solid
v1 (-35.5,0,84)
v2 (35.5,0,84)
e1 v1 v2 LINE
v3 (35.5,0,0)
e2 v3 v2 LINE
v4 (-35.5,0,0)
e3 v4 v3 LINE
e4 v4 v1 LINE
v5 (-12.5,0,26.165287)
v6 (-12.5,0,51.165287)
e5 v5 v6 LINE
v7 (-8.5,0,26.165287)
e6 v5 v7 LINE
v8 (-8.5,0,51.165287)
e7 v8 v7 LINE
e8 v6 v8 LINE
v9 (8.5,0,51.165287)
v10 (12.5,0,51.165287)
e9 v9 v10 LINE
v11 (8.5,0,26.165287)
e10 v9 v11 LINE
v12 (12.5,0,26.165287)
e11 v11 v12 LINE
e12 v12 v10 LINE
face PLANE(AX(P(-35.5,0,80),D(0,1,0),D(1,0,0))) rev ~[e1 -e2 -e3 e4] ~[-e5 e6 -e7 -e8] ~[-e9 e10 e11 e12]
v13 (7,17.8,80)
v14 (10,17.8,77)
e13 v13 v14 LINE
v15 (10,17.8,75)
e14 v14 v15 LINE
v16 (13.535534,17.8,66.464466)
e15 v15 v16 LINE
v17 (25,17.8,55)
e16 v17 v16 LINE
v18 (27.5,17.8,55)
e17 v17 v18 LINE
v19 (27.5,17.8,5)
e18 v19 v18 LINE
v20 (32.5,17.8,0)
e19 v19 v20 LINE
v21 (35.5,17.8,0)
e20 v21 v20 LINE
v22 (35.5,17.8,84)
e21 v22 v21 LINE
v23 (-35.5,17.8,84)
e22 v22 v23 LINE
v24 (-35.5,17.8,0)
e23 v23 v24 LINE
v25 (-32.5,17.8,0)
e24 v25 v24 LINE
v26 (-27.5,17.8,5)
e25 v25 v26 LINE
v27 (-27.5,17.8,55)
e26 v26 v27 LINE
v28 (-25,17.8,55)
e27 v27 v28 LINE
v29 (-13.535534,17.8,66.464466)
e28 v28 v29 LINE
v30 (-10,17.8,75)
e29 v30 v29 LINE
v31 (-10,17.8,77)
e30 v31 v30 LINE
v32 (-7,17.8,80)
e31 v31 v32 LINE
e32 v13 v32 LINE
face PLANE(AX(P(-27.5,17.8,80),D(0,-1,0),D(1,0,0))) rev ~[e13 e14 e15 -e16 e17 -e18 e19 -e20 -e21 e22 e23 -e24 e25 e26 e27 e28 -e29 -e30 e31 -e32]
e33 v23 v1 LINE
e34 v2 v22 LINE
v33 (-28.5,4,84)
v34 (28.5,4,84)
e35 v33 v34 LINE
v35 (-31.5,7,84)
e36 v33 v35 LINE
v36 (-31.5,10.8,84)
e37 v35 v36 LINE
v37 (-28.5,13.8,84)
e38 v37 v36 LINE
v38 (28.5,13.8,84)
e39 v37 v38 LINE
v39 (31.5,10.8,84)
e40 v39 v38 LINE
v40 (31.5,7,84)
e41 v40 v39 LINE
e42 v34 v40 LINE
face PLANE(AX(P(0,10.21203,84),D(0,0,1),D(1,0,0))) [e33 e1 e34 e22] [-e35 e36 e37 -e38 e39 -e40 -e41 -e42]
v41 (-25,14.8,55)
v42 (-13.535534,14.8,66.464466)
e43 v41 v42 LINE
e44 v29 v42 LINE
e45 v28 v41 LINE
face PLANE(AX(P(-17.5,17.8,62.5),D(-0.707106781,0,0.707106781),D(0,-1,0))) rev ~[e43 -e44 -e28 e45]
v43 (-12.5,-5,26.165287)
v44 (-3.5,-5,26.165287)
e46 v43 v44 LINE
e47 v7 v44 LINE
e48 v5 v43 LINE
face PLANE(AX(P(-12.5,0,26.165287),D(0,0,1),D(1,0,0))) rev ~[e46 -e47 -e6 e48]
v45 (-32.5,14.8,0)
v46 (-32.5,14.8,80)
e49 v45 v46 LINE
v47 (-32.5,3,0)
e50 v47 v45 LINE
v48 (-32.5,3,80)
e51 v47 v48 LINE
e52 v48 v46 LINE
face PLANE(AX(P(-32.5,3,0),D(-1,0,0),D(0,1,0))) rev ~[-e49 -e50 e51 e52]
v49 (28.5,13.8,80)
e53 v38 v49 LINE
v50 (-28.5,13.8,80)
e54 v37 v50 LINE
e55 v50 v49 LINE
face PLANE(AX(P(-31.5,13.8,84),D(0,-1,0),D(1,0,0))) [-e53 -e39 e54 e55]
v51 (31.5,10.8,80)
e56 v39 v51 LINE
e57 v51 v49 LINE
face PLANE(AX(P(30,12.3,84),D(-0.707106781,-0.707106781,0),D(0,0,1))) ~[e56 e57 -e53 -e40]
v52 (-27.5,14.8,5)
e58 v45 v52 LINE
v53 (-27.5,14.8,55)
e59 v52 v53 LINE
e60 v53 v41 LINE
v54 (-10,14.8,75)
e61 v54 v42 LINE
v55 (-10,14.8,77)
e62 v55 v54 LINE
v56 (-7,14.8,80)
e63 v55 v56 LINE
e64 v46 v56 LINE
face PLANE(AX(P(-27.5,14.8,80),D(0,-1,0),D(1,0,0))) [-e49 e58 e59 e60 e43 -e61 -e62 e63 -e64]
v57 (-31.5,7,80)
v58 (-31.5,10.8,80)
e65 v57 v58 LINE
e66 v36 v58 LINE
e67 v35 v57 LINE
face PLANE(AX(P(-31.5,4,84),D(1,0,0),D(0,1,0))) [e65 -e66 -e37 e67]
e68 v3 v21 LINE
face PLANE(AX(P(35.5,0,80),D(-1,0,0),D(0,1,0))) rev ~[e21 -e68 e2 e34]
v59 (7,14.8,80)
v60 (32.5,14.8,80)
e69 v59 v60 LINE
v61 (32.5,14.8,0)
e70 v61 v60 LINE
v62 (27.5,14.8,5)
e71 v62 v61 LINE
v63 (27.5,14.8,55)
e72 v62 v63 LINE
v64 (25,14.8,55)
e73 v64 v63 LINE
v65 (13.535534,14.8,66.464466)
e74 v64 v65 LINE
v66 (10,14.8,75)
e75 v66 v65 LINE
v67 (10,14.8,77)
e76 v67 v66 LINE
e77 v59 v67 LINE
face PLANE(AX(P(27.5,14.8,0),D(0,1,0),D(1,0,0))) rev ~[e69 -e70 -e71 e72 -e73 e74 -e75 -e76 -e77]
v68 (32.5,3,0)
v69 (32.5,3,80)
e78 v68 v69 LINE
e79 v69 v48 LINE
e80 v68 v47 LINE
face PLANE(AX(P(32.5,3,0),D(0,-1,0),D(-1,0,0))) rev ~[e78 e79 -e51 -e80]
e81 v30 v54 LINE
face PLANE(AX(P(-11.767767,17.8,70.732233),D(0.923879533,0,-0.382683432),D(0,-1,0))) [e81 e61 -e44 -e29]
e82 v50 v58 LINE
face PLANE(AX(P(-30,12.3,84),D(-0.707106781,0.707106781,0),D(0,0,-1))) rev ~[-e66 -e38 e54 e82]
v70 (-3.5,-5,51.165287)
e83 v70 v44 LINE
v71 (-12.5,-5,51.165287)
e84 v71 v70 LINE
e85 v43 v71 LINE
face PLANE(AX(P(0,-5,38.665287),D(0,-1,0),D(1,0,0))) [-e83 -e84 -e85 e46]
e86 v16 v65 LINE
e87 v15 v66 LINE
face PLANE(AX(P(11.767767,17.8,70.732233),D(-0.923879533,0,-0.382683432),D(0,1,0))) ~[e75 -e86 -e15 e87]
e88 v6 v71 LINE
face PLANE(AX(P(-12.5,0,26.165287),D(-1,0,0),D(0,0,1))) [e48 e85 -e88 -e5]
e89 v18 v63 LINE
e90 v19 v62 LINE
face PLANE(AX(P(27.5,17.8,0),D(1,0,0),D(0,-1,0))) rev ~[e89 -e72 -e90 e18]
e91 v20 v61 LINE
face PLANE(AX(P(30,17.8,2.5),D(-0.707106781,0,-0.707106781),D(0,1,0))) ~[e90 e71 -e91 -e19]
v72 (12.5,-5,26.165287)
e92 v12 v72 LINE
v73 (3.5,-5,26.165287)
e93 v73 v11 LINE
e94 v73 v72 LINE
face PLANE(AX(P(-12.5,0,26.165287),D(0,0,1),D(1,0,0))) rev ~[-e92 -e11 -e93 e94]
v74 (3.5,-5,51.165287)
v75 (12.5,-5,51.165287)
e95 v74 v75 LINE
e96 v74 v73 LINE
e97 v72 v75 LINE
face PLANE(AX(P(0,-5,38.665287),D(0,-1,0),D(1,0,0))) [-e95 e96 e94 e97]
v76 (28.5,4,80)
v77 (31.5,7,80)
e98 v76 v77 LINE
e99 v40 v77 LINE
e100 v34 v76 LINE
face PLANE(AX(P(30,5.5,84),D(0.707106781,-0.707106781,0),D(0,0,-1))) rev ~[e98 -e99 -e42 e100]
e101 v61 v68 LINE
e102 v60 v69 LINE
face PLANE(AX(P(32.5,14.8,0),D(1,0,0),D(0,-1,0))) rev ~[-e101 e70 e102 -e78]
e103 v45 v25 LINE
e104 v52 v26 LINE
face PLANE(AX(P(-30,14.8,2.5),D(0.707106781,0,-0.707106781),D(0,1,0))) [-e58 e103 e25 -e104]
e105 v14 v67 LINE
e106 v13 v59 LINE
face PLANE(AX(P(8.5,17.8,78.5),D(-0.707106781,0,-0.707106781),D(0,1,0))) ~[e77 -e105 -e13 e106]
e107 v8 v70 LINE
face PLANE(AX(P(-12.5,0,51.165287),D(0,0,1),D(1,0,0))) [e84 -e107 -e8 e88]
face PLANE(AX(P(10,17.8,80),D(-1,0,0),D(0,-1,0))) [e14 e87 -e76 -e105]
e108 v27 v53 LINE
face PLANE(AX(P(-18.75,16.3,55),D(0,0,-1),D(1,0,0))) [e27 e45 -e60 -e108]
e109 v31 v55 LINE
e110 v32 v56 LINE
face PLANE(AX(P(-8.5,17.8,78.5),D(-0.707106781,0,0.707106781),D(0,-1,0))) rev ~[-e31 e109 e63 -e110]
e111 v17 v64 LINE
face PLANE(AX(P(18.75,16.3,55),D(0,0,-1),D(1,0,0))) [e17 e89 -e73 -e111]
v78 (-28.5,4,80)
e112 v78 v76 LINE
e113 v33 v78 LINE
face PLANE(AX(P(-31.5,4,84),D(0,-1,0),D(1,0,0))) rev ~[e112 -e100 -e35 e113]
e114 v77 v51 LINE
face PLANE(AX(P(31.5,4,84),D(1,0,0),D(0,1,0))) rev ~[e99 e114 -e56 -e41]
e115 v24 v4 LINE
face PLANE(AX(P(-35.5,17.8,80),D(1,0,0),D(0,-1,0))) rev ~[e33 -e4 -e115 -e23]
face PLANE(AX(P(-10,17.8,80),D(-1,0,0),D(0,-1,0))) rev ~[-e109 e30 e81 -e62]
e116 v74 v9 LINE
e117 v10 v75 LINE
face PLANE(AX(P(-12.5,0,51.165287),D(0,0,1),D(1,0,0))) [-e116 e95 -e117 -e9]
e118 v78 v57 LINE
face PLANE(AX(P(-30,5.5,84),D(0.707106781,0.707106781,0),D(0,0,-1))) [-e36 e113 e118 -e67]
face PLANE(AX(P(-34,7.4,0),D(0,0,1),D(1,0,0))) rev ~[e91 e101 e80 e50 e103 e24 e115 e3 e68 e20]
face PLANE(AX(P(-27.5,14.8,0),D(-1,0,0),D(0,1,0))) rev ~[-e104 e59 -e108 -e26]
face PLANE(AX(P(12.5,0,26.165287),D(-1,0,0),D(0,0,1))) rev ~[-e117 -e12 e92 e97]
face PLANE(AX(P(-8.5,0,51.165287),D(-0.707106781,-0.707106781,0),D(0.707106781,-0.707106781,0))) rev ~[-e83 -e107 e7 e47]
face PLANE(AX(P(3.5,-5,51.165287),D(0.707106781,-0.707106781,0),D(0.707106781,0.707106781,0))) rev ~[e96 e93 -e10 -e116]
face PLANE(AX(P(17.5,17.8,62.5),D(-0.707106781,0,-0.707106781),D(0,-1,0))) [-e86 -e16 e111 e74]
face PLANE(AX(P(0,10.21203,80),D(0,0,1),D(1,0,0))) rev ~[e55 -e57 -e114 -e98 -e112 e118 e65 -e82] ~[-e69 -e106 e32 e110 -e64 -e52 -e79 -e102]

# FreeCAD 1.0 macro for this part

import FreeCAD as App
import Part
import Sketcher
Q = App.Units.Quantity


def edges_at(feature, points):
    """Names of the edges that pass closest to the given points."""
    edges = feature.Shape.Edges
    near = lambda p: min(range(len(edges)), key=lambda i: edges[i].distToShape(Part.Vertex(*p))[0])
    return sorted({f"Edge{near(p) + 1}" for p in points})

doc = App.newDocument("Part")
body = doc.addObject("PartDesign::Body", "Body")

sketch1 = doc.addObject("Sketcher::SketchObject", "Sketch")
body.addObject(sketch1)
sketch1.AttachmentSupport = (doc.XY_Plane, [""])
sketch1.MapMode = "FlatFace"
sketch1.addGeometry([
    Part.LineSegment(App.Vector(-35.5, 0, 0), App.Vector(35.5, 0, 0)),
    Part.LineSegment(App.Vector(35.5, 0, 0), App.Vector(35.5, 17.8, 0)),
    Part.LineSegment(App.Vector(35.5, 17.8, 0), App.Vector(27.5, 17.8, 0)),
    Part.LineSegment(App.Vector(27.5, 17.8, 0), App.Vector(27.5, 14.8, 0)),
    Part.LineSegment(App.Vector(27.5, 14.8, 0), App.Vector(32.5, 14.8, 0)),
    Part.LineSegment(App.Vector(32.5, 14.8, 0), App.Vector(32.5, 3, 0)),
    Part.LineSegment(App.Vector(32.5, 3, 0), App.Vector(-32.5, 3, 0)),
    Part.LineSegment(App.Vector(-32.5, 3, 0), App.Vector(-32.5, 14.8, 0)),
    Part.LineSegment(App.Vector(-32.5, 14.8, 0), App.Vector(-27.5, 14.8, 0)),
    Part.LineSegment(App.Vector(-27.5, 14.8, 0), App.Vector(-27.5, 17.8, 0)),
    Part.LineSegment(App.Vector(-27.5, 17.8, 0), App.Vector(-35.5, 17.8, 0)),
    Part.LineSegment(App.Vector(-35.5, 17.8, 0), App.Vector(-35.5, 0, 0)),
], False)
sketch1.addConstraint([
    Sketcher.Constraint("Coincident", 0, 2, 1, 1),
    Sketcher.Constraint("Coincident", 1, 2, 2, 1),
    Sketcher.Constraint("Coincident", 2, 2, 3, 1),
    Sketcher.Constraint("Coincident", 3, 2, 4, 1),
    Sketcher.Constraint("Coincident", 4, 2, 5, 1),
    Sketcher.Constraint("Coincident", 5, 2, 6, 1),
    Sketcher.Constraint("Coincident", 6, 2, 7, 1),
    Sketcher.Constraint("Coincident", 7, 2, 8, 1),
    Sketcher.Constraint("Coincident", 8, 2, 9, 1),
    Sketcher.Constraint("Coincident", 9, 2, 10, 1),
    Sketcher.Constraint("Coincident", 10, 2, 11, 1),
    Sketcher.Constraint("Coincident", 11, 2, 0, 1),
    Sketcher.Constraint("Horizontal", 0),
    Sketcher.Constraint("Vertical", 1),
    Sketcher.Constraint("Horizontal", 2),
    Sketcher.Constraint("Vertical", 3),
    Sketcher.Constraint("Horizontal", 4),
    Sketcher.Constraint("Vertical", 5),
    Sketcher.Constraint("Horizontal", 6),
    Sketcher.Constraint("Vertical", 7),
    Sketcher.Constraint("Horizontal", 8),
    Sketcher.Constraint("Vertical", 9),
    Sketcher.Constraint("Horizontal", 10),
    Sketcher.Constraint("Vertical", 11),
    Sketcher.Constraint("Symmetric", 0, 2, 11, 2, -1, 1),
    Sketcher.Constraint("Symmetric", 4, 2, 7, 2, -2),
    Sketcher.Constraint("Symmetric", 2, 2, 9, 2, -2),
    Sketcher.Constraint("DistanceX", 0, 1, 0, 2, Q("71 mm")),
    Sketcher.Constraint("DistanceX", 2, 2, 2, 1, Q("8 mm")),
    Sketcher.Constraint("DistanceX", 4, 1, 4, 2, Q("5 mm")),
    Sketcher.Constraint("DistanceY", 3, 2, 3, 1, Q("3 mm")),
    Sketcher.Constraint("DistanceY", 1, 1, 1, 2, Q("17.8 mm")),
    Sketcher.Constraint("DistanceY", 5, 2, 5, 1, Q("11.8 mm")),
])
pad1 = doc.addObject("PartDesign::Pad", "Pad")
body.addObject(pad1)
pad1.Profile = sketch1
pad1.Length = 80

sketch2 = doc.addObject("Sketcher::SketchObject", "Sketch001")
body.addObject(sketch2)
sketch2.AttachmentSupport = (doc.XY_Plane, [""])
sketch2.MapMode = "FlatFace"
sketch2.AttachmentOffset = App.Placement(App.Vector(0, 0, 80), App.Rotation())
sketch2.addGeometry([
    Part.LineSegment(App.Vector(-36, 18, 0), App.Vector(-36, 0, 0)),
    Part.LineSegment(App.Vector(-36, 0, 0), App.Vector(36, 0, 0)),
    Part.LineSegment(App.Vector(36, 0, 0), App.Vector(36, 18, 0)),
    Part.LineSegment(App.Vector(36, 18, 0), App.Vector(-36, 18, 0)),
], False)
sketch2.addConstraint([
    Sketcher.Constraint("Coincident", 0, 2, 1, 1),
    Sketcher.Constraint("Coincident", 1, 2, 2, 1),
    Sketcher.Constraint("Coincident", 2, 2, 3, 1),
    Sketcher.Constraint("Coincident", 3, 2, 0, 1),
    Sketcher.Constraint("Vertical", 0),
    Sketcher.Constraint("Horizontal", 1),
    Sketcher.Constraint("Vertical", 2),
    Sketcher.Constraint("Horizontal", 3),
    Sketcher.Constraint("Symmetric", 0, 2, 1, 2, -1, 1),
    Sketcher.Constraint("DistanceX", 1, 1, 1, 2, Q("71 mm")),
    Sketcher.Constraint("DistanceY", 0, 2, 0, 1, Q("17.8 mm")),
])
pad2 = doc.addObject("PartDesign::Pad", "Pad001")
body.addObject(pad2)
pad2.Profile = sketch2
pad2.Length = 4

sketch3 = doc.addObject("Sketcher::SketchObject", "Sketch002")
body.addObject(sketch3)
sketch3.AttachmentSupport = (doc.XY_Plane, [""])
sketch3.MapMode = "FlatFace"
sketch3.AttachmentOffset = App.Placement(App.Vector(0, 0, 80), App.Rotation())
sketch3.addGeometry([
    Part.LineSegment(App.Vector(-27.5, 14.8, 0), App.Vector(-27.5, 17.8, 0)),
    Part.LineSegment(App.Vector(-27.5, 17.8, 0), App.Vector(-10, 17.8, 0)),
    Part.LineSegment(App.Vector(-10, 17.8, 0), App.Vector(-10, 14.8, 0)),
    Part.LineSegment(App.Vector(-10, 14.8, 0), App.Vector(-27.5, 14.8, 0)),
    Part.LineSegment(App.Vector(10, 14.8, 0), App.Vector(10, 17.8, 0)),
    Part.LineSegment(App.Vector(10, 17.8, 0), App.Vector(27.5, 17.8, 0)),
    Part.LineSegment(App.Vector(27.5, 17.8, 0), App.Vector(27.5, 14.8, 0)),
    Part.LineSegment(App.Vector(27.5, 14.8, 0), App.Vector(10, 14.8, 0)),
], False)
sketch3.addConstraint([
    Sketcher.Constraint("Coincident", 0, 2, 1, 1),
    Sketcher.Constraint("Coincident", 1, 2, 2, 1),
    Sketcher.Constraint("Coincident", 2, 2, 3, 1),
    Sketcher.Constraint("Coincident", 3, 2, 0, 1),
    Sketcher.Constraint("Coincident", 4, 2, 5, 1),
    Sketcher.Constraint("Coincident", 5, 2, 6, 1),
    Sketcher.Constraint("Coincident", 6, 2, 7, 1),
    Sketcher.Constraint("Coincident", 7, 2, 4, 1),
    Sketcher.Constraint("Vertical", 0),
    Sketcher.Constraint("Horizontal", 1),
    Sketcher.Constraint("Vertical", 2),
    Sketcher.Constraint("Horizontal", 3),
    Sketcher.Constraint("Vertical", 4),
    Sketcher.Constraint("Horizontal", 5),
    Sketcher.Constraint("Vertical", 6),
    Sketcher.Constraint("Horizontal", 7),
    Sketcher.Constraint("Symmetric", 1, 2, 4, 2, -2),
    Sketcher.Constraint("Symmetric", 3, 2, 6, 2, -2),
    Sketcher.Constraint("DistanceY", 0, 1, 0, 2, Q("3 mm")),
    Sketcher.Constraint("DistanceX", 1, 1, 1, 2, Q("17.5 mm")),
    Sketcher.Constraint("DistanceX", 1, 2, -1, 1, Q("10 mm")),
    Sketcher.Constraint("DistanceY", -1, 1, 0, 2, Q("17.8 mm")),
])
pad3 = doc.addObject("PartDesign::Pad", "Pad002")
body.addObject(pad3)
pad3.Profile = sketch3
pad3.Length = 25
pad3.Reversed = True
doc.recompute()

chamfer = doc.addObject("PartDesign::Chamfer", "Chamfer")
body.addObject(chamfer)
chamfer.Base = (pad3, edges_at(pad3, [(-10, 16.3, 55), (10, 16.3, 55)]))
chamfer.Size = 15
doc.recompute()

chamfer2 = doc.addObject("PartDesign::Chamfer", "Chamfer001")
body.addObject(chamfer2)
chamfer2.Base = (chamfer, edges_at(chamfer, [(-10, 16.3, 70), (10, 16.3, 70)]))
chamfer2.Size = 5

sketch4 = doc.addObject("Sketcher::SketchObject", "Sketch003")
body.addObject(sketch4)
sketch4.AttachmentSupport = (doc.XY_Plane, [""])
sketch4.MapMode = "FlatFace"
sketch4.AttachmentOffset = App.Placement(App.Vector(0, 0, 84), App.Rotation())
sketch4.addGeometry([
    Part.LineSegment(App.Vector(-31, 14, 0), App.Vector(-31, 4, 0)),
    Part.LineSegment(App.Vector(-31, 4, 0), App.Vector(31, 4, 0)),
    Part.LineSegment(App.Vector(31, 4, 0), App.Vector(31, 14, 0)),
    Part.LineSegment(App.Vector(31, 14, 0), App.Vector(-31, 14, 0)),
], False)
sketch4.addConstraint([
    Sketcher.Constraint("Coincident", 0, 2, 1, 1),
    Sketcher.Constraint("Coincident", 1, 2, 2, 1),
    Sketcher.Constraint("Coincident", 2, 2, 3, 1),
    Sketcher.Constraint("Coincident", 3, 2, 0, 1),
    Sketcher.Constraint("Vertical", 0),
    Sketcher.Constraint("Horizontal", 1),
    Sketcher.Constraint("Vertical", 2),
    Sketcher.Constraint("Horizontal", 3),
    Sketcher.Constraint("DistanceX", 1, 1, 1, 2, Q("63 mm")),
    Sketcher.Constraint("DistanceY", 0, 2, 0, 1, Q("9.8 mm")),
    Sketcher.Constraint("DistanceY", -1, 1, 0, 2, Q("4 mm")),
    Sketcher.Constraint("DistanceX", 0, 2, -1, 1, Q("31.5 mm")),
])
pocket1 = doc.addObject("PartDesign::Pocket", "Pocket")
body.addObject(pocket1)
pocket1.Profile = sketch4
pocket1.Length = 4
doc.recompute()

chamfer3 = doc.addObject("PartDesign::Chamfer", "Chamfer002")
body.addObject(chamfer3)
chamfer3.Base = (pocket1, edges_at(pocket1, [
    (-31.5, 13.8, 82),
    (-31.5, 4, 82),
    (31.5, 4, 82),
    (31.5, 13.8, 82),
    (10, 16.3, 80),
    (-10, 16.3, 80),
]))
chamfer3.Size = 3
doc.recompute()

chamfer4 = doc.addObject("PartDesign::Chamfer", "Chamfer003")
body.addObject(chamfer4)
chamfer4.Base = (chamfer3, edges_at(chamfer3, [(-27.5, 16.3, 0), (27.5, 16.3, 0)]))
chamfer4.Size = 5

sketch5 = doc.addObject("Sketcher::SketchObject", "Sketch004")
body.addObject(sketch5)
sketch5.AttachmentSupport = (doc.XZ_Plane, [""])
sketch5.MapMode = "FlatFace"
sketch5.addGeometry([
    Part.LineSegment(App.Vector(-12, 51, 0), App.Vector(-12, 26, 0)),
    Part.LineSegment(App.Vector(-12, 26, 0), App.Vector(12, 26, 0)),
    Part.LineSegment(App.Vector(12, 26, 0), App.Vector(12, 51, 0)),
    Part.LineSegment(App.Vector(12, 51, 0), App.Vector(-12, 51, 0)),
], False)
sketch5.addConstraint([
    Sketcher.Constraint("Coincident", 0, 2, 1, 1),
    Sketcher.Constraint("Coincident", 1, 2, 2, 1),
    Sketcher.Constraint("Coincident", 2, 2, 3, 1),
    Sketcher.Constraint("Coincident", 3, 2, 0, 1),
    Sketcher.Constraint("Vertical", 0),
    Sketcher.Constraint("Horizontal", 1),
    Sketcher.Constraint("Vertical", 2),
    Sketcher.Constraint("Horizontal", 3),
    Sketcher.Constraint("Equal", 3, 0),
    Sketcher.Constraint("DistanceX", 1, 1, 1, 2, Q("25 mm")),
    Sketcher.Constraint("DistanceX", 0, 2, -1, 1, Q("12.5 mm")),
    Sketcher.Constraint("DistanceY", -1, 1, 0, 2, Q("26.165287 mm")),
])
pad4 = doc.addObject("PartDesign::Pad", "Pad003")
body.addObject(pad4)
pad4.Profile = sketch5
pad4.Length = 5

sketch6 = doc.addObject("Sketcher::SketchObject", "Sketch005")
body.addObject(sketch6)
sketch6.AttachmentSupport = (doc.XY_Plane, [""])
sketch6.MapMode = "FlatFace"
sketch6.AttachmentOffset = App.Placement(App.Vector(0, 0, 51.165287), App.Rotation())
sketch6.addGeometry([
    Part.LineSegment(App.Vector(8, 0, 0), App.Vector(-8, 0, 0)),
    Part.LineSegment(App.Vector(-8, 0, 0), App.Vector(-4, -5, 0)),
    Part.LineSegment(App.Vector(-4, -5, 0), App.Vector(4, -5, 0)),
    Part.LineSegment(App.Vector(4, -5, 0), App.Vector(8, 0, 0)),
], False)
sketch6.addConstraint([
    Sketcher.Constraint("Coincident", 0, 2, 1, 1),
    Sketcher.Constraint("Coincident", 1, 2, 2, 1),
    Sketcher.Constraint("Coincident", 2, 2, 3, 1),
    Sketcher.Constraint("Coincident", 3, 2, 0, 1),
    Sketcher.Constraint("Horizontal", 0),
    Sketcher.Constraint("Horizontal", 2),
    Sketcher.Constraint("Symmetric", 0, 2, 3, 2, -1, 1),
    Sketcher.Constraint("Perpendicular", 1, 3),
    Sketcher.Constraint("Equal", 1, 3),
    Sketcher.Constraint("DistanceX", 0, 2, 0, 1, Q("17 mm")),
    Sketcher.Constraint("DistanceX", 2, 1, 2, 2, Q("7 mm")),
])
pocket2 = doc.addObject("PartDesign::Pocket", "Pocket001")
body.addObject(pocket2)
pocket2.Profile = sketch6
pocket2.Length = 25

doc.recompute()
